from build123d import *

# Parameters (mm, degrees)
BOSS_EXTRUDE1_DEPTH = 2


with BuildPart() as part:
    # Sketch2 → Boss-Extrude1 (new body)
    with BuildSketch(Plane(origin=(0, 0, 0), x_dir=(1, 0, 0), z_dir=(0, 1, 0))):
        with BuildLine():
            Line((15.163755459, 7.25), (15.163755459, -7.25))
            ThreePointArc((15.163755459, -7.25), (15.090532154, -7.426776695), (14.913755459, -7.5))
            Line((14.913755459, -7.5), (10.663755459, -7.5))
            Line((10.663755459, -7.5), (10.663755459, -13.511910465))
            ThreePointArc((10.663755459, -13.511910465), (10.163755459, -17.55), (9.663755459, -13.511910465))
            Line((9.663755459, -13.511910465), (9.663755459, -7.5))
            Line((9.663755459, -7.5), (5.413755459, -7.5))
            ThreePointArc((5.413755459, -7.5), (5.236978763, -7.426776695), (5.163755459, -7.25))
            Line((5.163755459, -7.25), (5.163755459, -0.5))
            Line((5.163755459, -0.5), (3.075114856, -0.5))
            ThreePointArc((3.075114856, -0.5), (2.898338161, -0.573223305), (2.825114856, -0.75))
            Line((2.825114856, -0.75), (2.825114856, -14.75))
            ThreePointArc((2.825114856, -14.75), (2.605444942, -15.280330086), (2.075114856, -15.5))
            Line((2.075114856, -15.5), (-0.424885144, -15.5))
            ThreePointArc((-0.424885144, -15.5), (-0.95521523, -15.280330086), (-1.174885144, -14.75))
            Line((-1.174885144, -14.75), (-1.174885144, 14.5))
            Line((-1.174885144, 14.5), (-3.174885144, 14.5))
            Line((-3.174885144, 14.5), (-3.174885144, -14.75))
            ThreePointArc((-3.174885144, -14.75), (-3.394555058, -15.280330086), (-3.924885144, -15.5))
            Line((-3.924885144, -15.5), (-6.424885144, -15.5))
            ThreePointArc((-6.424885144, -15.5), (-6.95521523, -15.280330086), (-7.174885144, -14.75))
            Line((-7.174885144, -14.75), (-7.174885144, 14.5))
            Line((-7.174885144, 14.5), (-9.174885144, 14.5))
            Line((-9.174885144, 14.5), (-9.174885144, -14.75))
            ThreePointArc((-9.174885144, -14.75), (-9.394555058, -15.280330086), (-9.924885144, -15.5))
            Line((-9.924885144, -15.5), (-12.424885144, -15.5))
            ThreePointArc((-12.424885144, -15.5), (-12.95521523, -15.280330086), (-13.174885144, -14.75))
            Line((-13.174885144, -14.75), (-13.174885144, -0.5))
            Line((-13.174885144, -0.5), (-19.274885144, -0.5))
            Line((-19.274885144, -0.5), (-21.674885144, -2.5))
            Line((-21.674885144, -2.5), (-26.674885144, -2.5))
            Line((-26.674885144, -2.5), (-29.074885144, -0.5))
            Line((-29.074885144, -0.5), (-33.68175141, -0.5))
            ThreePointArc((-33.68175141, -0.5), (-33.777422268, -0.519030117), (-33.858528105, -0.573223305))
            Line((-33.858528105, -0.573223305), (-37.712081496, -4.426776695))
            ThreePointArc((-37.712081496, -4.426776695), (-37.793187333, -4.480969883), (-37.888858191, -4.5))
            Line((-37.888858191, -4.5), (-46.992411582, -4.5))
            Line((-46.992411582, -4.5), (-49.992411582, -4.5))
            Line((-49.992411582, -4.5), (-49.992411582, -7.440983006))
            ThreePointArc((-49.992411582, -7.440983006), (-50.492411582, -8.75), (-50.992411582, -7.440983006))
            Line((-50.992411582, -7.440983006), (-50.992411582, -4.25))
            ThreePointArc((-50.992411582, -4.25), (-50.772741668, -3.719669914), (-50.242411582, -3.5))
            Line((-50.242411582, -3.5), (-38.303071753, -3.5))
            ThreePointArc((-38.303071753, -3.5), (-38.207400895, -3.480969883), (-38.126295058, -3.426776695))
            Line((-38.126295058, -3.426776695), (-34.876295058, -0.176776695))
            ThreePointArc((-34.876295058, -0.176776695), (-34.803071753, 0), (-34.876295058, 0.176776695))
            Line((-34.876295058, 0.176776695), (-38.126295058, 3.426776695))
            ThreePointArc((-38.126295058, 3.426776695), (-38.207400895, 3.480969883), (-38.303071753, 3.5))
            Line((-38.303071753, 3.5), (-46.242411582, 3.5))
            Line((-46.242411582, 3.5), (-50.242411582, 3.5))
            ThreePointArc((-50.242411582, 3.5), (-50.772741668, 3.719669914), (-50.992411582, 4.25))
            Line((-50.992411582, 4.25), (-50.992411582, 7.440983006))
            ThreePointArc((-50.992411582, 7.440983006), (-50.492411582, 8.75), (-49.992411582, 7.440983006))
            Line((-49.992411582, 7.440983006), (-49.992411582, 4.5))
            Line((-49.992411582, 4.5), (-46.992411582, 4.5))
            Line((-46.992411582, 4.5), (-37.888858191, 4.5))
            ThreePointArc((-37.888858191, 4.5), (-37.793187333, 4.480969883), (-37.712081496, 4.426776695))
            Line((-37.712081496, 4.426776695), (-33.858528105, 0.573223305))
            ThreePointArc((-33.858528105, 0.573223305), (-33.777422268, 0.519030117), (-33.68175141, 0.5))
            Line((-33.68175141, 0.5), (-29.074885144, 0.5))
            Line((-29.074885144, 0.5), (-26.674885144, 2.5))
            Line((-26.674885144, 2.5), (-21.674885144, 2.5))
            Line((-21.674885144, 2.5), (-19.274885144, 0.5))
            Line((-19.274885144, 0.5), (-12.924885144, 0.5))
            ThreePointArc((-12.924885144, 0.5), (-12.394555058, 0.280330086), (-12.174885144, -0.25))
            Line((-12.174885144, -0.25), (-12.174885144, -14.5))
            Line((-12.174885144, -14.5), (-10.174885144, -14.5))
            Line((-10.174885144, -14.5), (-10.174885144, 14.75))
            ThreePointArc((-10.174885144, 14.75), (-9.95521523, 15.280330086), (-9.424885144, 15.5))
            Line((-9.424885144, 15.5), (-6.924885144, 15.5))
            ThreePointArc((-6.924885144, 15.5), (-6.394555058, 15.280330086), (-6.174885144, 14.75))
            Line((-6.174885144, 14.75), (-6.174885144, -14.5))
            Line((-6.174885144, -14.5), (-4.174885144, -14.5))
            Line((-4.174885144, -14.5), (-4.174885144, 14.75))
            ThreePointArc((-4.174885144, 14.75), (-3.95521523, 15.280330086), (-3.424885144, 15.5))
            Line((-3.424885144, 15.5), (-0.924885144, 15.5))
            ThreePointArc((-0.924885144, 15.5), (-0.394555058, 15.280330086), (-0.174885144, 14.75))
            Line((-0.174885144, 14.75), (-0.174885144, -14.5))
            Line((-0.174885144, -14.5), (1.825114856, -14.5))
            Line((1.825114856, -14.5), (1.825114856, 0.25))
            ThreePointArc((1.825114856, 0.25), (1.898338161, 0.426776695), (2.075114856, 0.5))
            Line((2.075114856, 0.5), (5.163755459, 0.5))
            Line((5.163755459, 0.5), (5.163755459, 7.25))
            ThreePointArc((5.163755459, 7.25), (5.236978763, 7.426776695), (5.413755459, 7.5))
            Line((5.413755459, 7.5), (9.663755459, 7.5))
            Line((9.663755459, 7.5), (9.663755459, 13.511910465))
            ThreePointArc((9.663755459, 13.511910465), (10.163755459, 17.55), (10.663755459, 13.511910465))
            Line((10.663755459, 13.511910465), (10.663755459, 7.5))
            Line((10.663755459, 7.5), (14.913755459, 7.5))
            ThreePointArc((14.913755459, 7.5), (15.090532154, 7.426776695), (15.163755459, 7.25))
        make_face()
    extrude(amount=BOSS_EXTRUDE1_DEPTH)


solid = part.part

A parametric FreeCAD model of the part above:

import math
import FreeCAD as App
import Part
import Sketcher
from FreeCAD import Vector
Q = App.Units.Quantity

doc = App.newDocument("Part")
body = doc.addObject("PartDesign::Body", "Body")

sketch1 = doc.addObject("Sketcher::SketchObject", "Sketch")
body.addObject(sketch1)
sketch1.AttachmentSupport = (doc.XZ_Plane, [""])
sketch1.MapMode = "FlatFace"
sketch1.addGeometry([
    Part.LineSegment(Vector(15.163755, 7.25, 0), Vector(15.163755, -7.25, 0)),
    Part.ArcOfCircle(Part.Circle(Vector(14.913755, -7.25, 0), Vector(0, 0, 1), 0.25), math.radians(-90), math.radians(0)),
    Part.LineSegment(Vector(14.913755, -7.5, 0), Vector(10.663755, -7.5, 0)),
    Part.LineSegment(Vector(10.663755, -7.5, 0), Vector(10.663755, -13.51191, 0)),
    Part.ArcOfCircle(Part.Circle(Vector(10.163755, -15.5, 0), Vector(0, 0, 1), 2.05), math.radians(104.116981), math.radians(435.883019)),
    Part.LineSegment(Vector(9.663755, -13.51191, 0), Vector(9.663755, -7.5, 0)),
    Part.LineSegment(Vector(9.663755, -7.5, 0), Vector(5.413755, -7.5, 0)),
    Part.ArcOfCircle(Part.Circle(Vector(5.413755, -7.25, 0), Vector(0, 0, 1), 0.25), math.radians(180), math.radians(270)),
    Part.LineSegment(Vector(5.163755, -7.25, 0), Vector(5.163755, -0.5, 0)),
    Part.LineSegment(Vector(5.163755, -0.5, 0), Vector(2.075115, -0.5, 0)),
    Part.ArcOfCircle(Part.Circle(Vector(2.075115, -0.25, 0), Vector(0, 0, 1), 0.25), math.radians(-180), math.radians(-90)),
    Part.LineSegment(Vector(1.825115, -0.25, 0), Vector(1.825115, 14.5, 0)),
    Part.LineSegment(Vector(1.825115, 14.5, 0), Vector(-0.174885, 14.5, 0)),
    Part.LineSegment(Vector(-0.174885, 14.5, 0), Vector(-0.174885, -14.75, 0)),
    Part.ArcOfCircle(Part.Circle(Vector(-0.924885, -14.75, 0), Vector(0, 0, 1), 0.75), math.radians(-90), math.radians(0)),
    Part.LineSegment(Vector(-0.924885, -15.5, 0), Vector(-3.424885, -15.5, 0)),
    Part.ArcOfCircle(Part.Circle(Vector(-3.424885, -14.75, 0), Vector(0, 0, 1), 0.75), math.radians(180), math.radians(270)),
    Part.LineSegment(Vector(-4.174885, -14.75, 0), Vector(-4.174885, 14.5, 0)),
    Part.LineSegment(Vector(-4.174885, 14.5, 0), Vector(-6.174885, 14.5, 0)),
    Part.LineSegment(Vector(-6.174885, 14.5, 0), Vector(-6.174885, -14.75, 0)),
    Part.ArcOfCircle(Part.Circle(Vector(-6.924885, -14.75, 0), Vector(0, 0, 1), 0.75), math.radians(-90), math.radians(0)),
    Part.LineSegment(Vector(-6.924885, -15.5, 0), Vector(-9.424885, -15.5, 0)),
    Part.ArcOfCircle(Part.Circle(Vector(-9.424885, -14.75, 0), Vector(0, 0, 1), 0.75), math.radians(180), math.radians(270)),
    Part.LineSegment(Vector(-10.174885, -14.75, 0), Vector(-10.174885, 14.5, 0)),
    Part.LineSegment(Vector(-10.174885, 14.5, 0), Vector(-12.174885, 14.5, 0)),
    Part.LineSegment(Vector(-12.174885, 14.5, 0), Vector(-12.174885, 0.25, 0)),
    Part.ArcOfCircle(Part.Circle(Vector(-12.924885, 0.25, 0), Vector(0, 0, 1), 0.75), math.radians(-90), math.radians(0)),
    Part.LineSegment(Vector(-12.924885, -0.5, 0), Vector(-19.274885, -0.5, 0)),
    Part.LineSegment(Vector(-19.274885, -0.5, 0), Vector(-21.674885, -2.5, 0)),
    Part.LineSegment(Vector(-21.674885, -2.5, 0), Vector(-26.674885, -2.5, 0)),
    Part.LineSegment(Vector(-26.674885, -2.5, 0), Vector(-29.074885, -0.5, 0)),
    Part.LineSegment(Vector(-29.074885, -0.5, 0), Vector(-33.681751, -0.5, 0)),
    Part.ArcOfCircle(Part.Circle(Vector(-33.681751, -0.75, 0), Vector(0, 0, 1), 0.25), math.radians(90), math.radians(135)),
    Part.LineSegment(Vector(-33.858528, -0.573223, 0), Vector(-37.712081, -4.426777, 0)),
    Part.ArcOfCircle(Part.Circle(Vector(-37.888858, -4.25, 0), Vector(0, 0, 1), 0.25), math.radians(-90), math.radians(-45)),
    Part.LineSegment(Vector(-37.888858, -4.5, 0), Vector(-49.992412, -4.5, 0)),
    Part.LineSegment(Vector(-49.992412, -4.5, 0), Vector(-49.992412, -7.440983, 0)),
    Part.ArcOfCircle(Part.Circle(Vector(-50.492412, -8, 0), Vector(0, 0, 1), 0.75), math.radians(131.810315), math.radians(408.189685)),
    Part.LineSegment(Vector(-50.992412, -7.440983, 0), Vector(-50.992412, -4.25, 0)),
    Part.ArcOfCircle(Part.Circle(Vector(-50.242412, -4.25, 0), Vector(0, 0, 1), 0.75), math.radians(90), math.radians(180)),
    Part.LineSegment(Vector(-50.242412, -3.5, 0), Vector(-38.303072, -3.5, 0)),
    Part.ArcOfCircle(Part.Circle(Vector(-38.303072, -3.25, 0), Vector(0, 0, 1), 0.25), math.radians(-90), math.radians(-45)),
    Part.LineSegment(Vector(-38.126295, -3.426777, 0), Vector(-34.876295, -0.176777, 0)),
    Part.ArcOfCircle(Part.Circle(Vector(-35.053072, 0, 0), Vector(0, 0, 1), 0.25), math.radians(-45), math.radians(45)),
    Part.LineSegment(Vector(-34.876295, 0.176777, 0), Vector(-38.126295, 3.426777, 0)),
    Part.ArcOfCircle(Part.Circle(Vector(-38.303072, 3.25, 0), Vector(0, 0, 1), 0.25), math.radians(45), math.radians(90)),
    Part.LineSegment(Vector(-38.303072, 3.5, 0), Vector(-50.242412, 3.5, 0)),
    Part.ArcOfCircle(Part.Circle(Vector(-50.242412, 4.25, 0), Vector(0, 0, 1), 0.75), math.radians(180), math.radians(270)),
    Part.LineSegment(Vector(-50.992412, 4.25, 0), Vector(-50.992412, 7.440983, 0)),
    Part.ArcOfCircle(Part.Circle(Vector(-50.492412, 8, 0), Vector(0, 0, 1), 0.75), math.radians(-48.189685), math.radians(228.189685)),
    Part.LineSegment(Vector(-49.992412, 7.440983, 0), Vector(-49.992412, 4.5, 0)),
    Part.LineSegment(Vector(-49.992412, 4.5, 0), Vector(-37.888858, 4.5, 0)),
    Part.ArcOfCircle(Part.Circle(Vector(-37.888858, 4.25, 0), Vector(0, 0, 1), 0.25), math.radians(45), math.radians(90)),
    Part.LineSegment(Vector(-37.712081, 4.426777, 0), Vector(-33.858528, 0.573223, 0)),
    Part.ArcOfCircle(Part.Circle(Vector(-33.681751, 0.75, 0), Vector(0, 0, 1), 0.25), math.radians(-135), math.radians(-90)),
    Part.LineSegment(Vector(-33.681751, 0.5, 0), Vector(-29.074885, 0.5, 0)),
    Part.LineSegment(Vector(-29.074885, 0.5, 0), Vector(-26.674885, 2.5, 0)),
    Part.LineSegment(Vector(-26.674885, 2.5, 0), Vector(-21.674885, 2.5, 0)),
    Part.LineSegment(Vector(-21.674885, 2.5, 0), Vector(-19.274885, 0.5, 0)),
    Part.LineSegment(Vector(-19.274885, 0.5, 0), Vector(-13.174885, 0.5, 0)),
    Part.LineSegment(Vector(-13.174885, 0.5, 0), Vector(-13.174885, 14.75, 0)),
    Part.ArcOfCircle(Part.Circle(Vector(-12.424885, 14.75, 0), Vector(0, 0, 1), 0.75), math.radians(90), math.radians(180)),
    Part.LineSegment(Vector(-12.424885, 15.5, 0), Vector(-9.924885, 15.5, 0)),
    Part.ArcOfCircle(Part.Circle(Vector(-9.924885, 14.75, 0), Vector(0, 0, 1), 0.75), math.radians(0), math.radians(90)),
    Part.LineSegment(Vector(-9.174885, 14.75, 0), Vector(-9.174885, -14.5, 0)),
    Part.LineSegment(Vector(-9.174885, -14.5, 0), Vector(-7.174885, -14.5, 0)),
    Part.LineSegment(Vector(-7.174885, -14.5, 0), Vector(-7.174885, 14.75, 0)),
    Part.ArcOfCircle(Part.Circle(Vector(-6.424885, 14.75, 0), Vector(0, 0, 1), 0.75), math.radians(90), math.radians(180)),
    Part.LineSegment(Vector(-6.424885, 15.5, 0), Vector(-3.924885, 15.5, 0)),
    Part.ArcOfCircle(Part.Circle(Vector(-3.924885, 14.75, 0), Vector(0, 0, 1), 0.75), math.radians(0), math.radians(90)),
    Part.LineSegment(Vector(-3.174885, 14.75, 0), Vector(-3.174885, -14.5, 0)),
    Part.LineSegment(Vector(-3.174885, -14.5, 0), Vector(-1.174885, -14.5, 0)),
    Part.LineSegment(Vector(-1.174885, -14.5, 0), Vector(-1.174885, 14.75, 0)),
    Part.ArcOfCircle(Part.Circle(Vector(-0.424885, 14.75, 0), Vector(0, 0, 1), 0.75), math.radians(90), math.radians(180)),
    Part.LineSegment(Vector(-0.424885, 15.5, 0), Vector(2.075115, 15.5, 0)),
    Part.ArcOfCircle(Part.Circle(Vector(2.075115, 14.75, 0), Vector(0, 0, 1), 0.75), math.radians(0), math.radians(90)),
    Part.LineSegment(Vector(2.825115, 14.75, 0), Vector(2.825115, 0.75, 0)),
    Part.ArcOfCircle(Part.Circle(Vector(3.075115, 0.75, 0), Vector(0, 0, 1), 0.25), math.radians(-180), math.radians(-90)),
    Part.LineSegment(Vector(3.075115, 0.5, 0), Vector(5.163755, 0.5, 0)),
    Part.LineSegment(Vector(5.163755, 0.5, 0), Vector(5.163755, 7.25, 0)),
    Part.ArcOfCircle(Part.Circle(Vector(5.413755, 7.25, 0), Vector(0, 0, 1), 0.25), math.radians(90), math.radians(180)),
    Part.LineSegment(Vector(5.413755, 7.5, 0), Vector(9.663755, 7.5, 0)),
    Part.LineSegment(Vector(9.663755, 7.5, 0), Vector(9.663755, 13.51191, 0)),
    Part.ArcOfCircle(Part.Circle(Vector(10.163755, 15.5, 0), Vector(0, 0, 1), 2.05), math.radians(-75.883019), math.radians(255.883019)),
    Part.LineSegment(Vector(10.663755, 13.51191, 0), Vector(10.663755, 7.5, 0)),
    Part.LineSegment(Vector(10.663755, 7.5, 0), Vector(14.913755, 7.5, 0)),
    Part.ArcOfCircle(Part.Circle(Vector(14.913755, 7.25, 0), Vector(0, 0, 1), 0.25), math.radians(0), math.radians(90)),
], False)
sketch1.addConstraint([
    Sketcher.Constraint("Tangent", 0, 2, 1, 2),
    Sketcher.Constraint("Tangent", 1, 1, 2, 1),
    Sketcher.Constraint("Coincident", 2, 2, 3, 1),
    Sketcher.Constraint("Coincident", 3, 2, 4, 2),
    Sketcher.Constraint("Coincident", 4, 1, 5, 1),
    Sketcher.Constraint("Coincident", 5, 2, 6, 1),
    Sketcher.Constraint("Tangent", 6, 2, 7, 2),
    Sketcher.Constraint("Tangent", 7, 1, 8, 1),
    Sketcher.Constraint("Coincident", 8, 2, 9, 1),
    Sketcher.Constraint("Tangent", 9, 2, 10, 2),
    Sketcher.Constraint("Tangent", 10, 1, 11, 1),
    Sketcher.Constraint("Coincident", 11, 2, 12, 1),
    Sketcher.Constraint("Coincident", 12, 2, 13, 1),
    Sketcher.Constraint("Tangent", 13, 2, 14, 2),
    Sketcher.Constraint("Tangent", 14, 1, 15, 1),
    Sketcher.Constraint("Tangent", 15, 2, 16, 2),
    Sketcher.Constraint("Tangent", 16, 1, 17, 1),
    Sketcher.Constraint("Coincident", 17, 2, 18, 1),
    Sketcher.Constraint("Coincident", 18, 2, 19, 1),
    Sketcher.Constraint("Tangent", 19, 2, 20, 2),
    Sketcher.Constraint("Tangent", 20, 1, 21, 1),
    Sketcher.Constraint("Tangent", 21, 2, 22, 2),
    Sketcher.Constraint("Tangent", 22, 1, 23, 1),
    Sketcher.Constraint("Coincident", 23, 2, 24, 1),
    Sketcher.Constraint("Coincident", 24, 2, 25, 1),
    Sketcher.Constraint("Tangent", 25, 2, 26, 2),
    Sketcher.Constraint("Tangent", 26, 1, 27, 1),
    Sketcher.Constraint("Coincident", 27, 2, 28, 1),
    Sketcher.Constraint("Coincident", 28, 2, 29, 1),
    Sketcher.Constraint("Coincident", 29, 2, 30, 1),
    Sketcher.Constraint("Coincident", 30, 2, 31, 1),
    Sketcher.Constraint("Tangent", 31, 2, 32, 1),
    Sketcher.Constraint("Tangent", 32, 2, 33, 1),
    Sketcher.Constraint("Tangent", 33, 2, 34, 2),
    Sketcher.Constraint("Tangent", 34, 1, 35, 1),
    Sketcher.Constraint("Coincident", 35, 2, 36, 1),
    Sketcher.Constraint("Coincident", 36, 2, 37, 2),
    Sketcher.Constraint("Coincident", 37, 1, 38, 1),
    Sketcher.Constraint("Tangent", 38, 2, 39, 2),
    Sketcher.Constraint("Tangent", 39, 1, 40, 1),
    Sketcher.Constraint("Tangent", 40, 2, 41, 1),
    Sketcher.Constraint("Tangent", 41, 2, 42, 1),
    Sketcher.Constraint("Tangent", 42, 2, 43, 1),
    Sketcher.Constraint("Tangent", 43, 2, 44, 1),
    Sketcher.Constraint("Tangent", 44, 2, 45, 1),
    Sketcher.Constraint("Tangent", 45, 2, 46, 1),
    Sketcher.Constraint("Tangent", 46, 2, 47, 2),
    Sketcher.Constraint("Tangent", 47, 1, 48, 1),
    Sketcher.Constraint("Coincident", 48, 2, 49, 2),
    Sketcher.Constraint("Coincident", 49, 1, 50, 1),
    Sketcher.Constraint("Coincident", 50, 2, 51, 1),
    Sketcher.Constraint("Tangent", 51, 2, 52, 2),
    Sketcher.Constraint("Tangent", 52, 1, 53, 1),
    Sketcher.Constraint("Tangent", 53, 2, 54, 1),
    Sketcher.Constraint("Tangent", 54, 2, 55, 1),
    Sketcher.Constraint("Coincident", 55, 2, 56, 1),
    Sketcher.Constraint("Coincident", 56, 2, 57, 1),
    Sketcher.Constraint("Coincident", 57, 2, 58, 1),
    Sketcher.Constraint("Coincident", 58, 2, 59, 1),
    Sketcher.Constraint("Coincident", 59, 2, 60, 1),
    Sketcher.Constraint("Tangent", 60, 2, 61, 2),
    Sketcher.Constraint("Tangent", 61, 1, 62, 1),
    Sketcher.Constraint("Tangent", 62, 2, 63, 2),
    Sketcher.Constraint("Tangent", 63, 1, 64, 1),
    Sketcher.Constraint("Coincident", 64, 2, 65, 1),
    Sketcher.Constraint("Coincident", 65, 2, 66, 1),
    Sketcher.Constraint("Tangent", 66, 2, 67, 2),
    Sketcher.Constraint("Tangent", 67, 1, 68, 1),
    Sketcher.Constraint("Tangent", 68, 2, 69, 2),
    Sketcher.Constraint("Tangent", 69, 1, 70, 1),
    Sketcher.Constraint("Coincident", 70, 2, 71, 1),
    Sketcher.Constraint("Coincident", 71, 2, 72, 1),
    Sketcher.Constraint("Tangent", 72, 2, 73, 2),
    Sketcher.Constraint("Tangent", 73, 1, 74, 1),
    Sketcher.Constraint("Tangent", 74, 2, 75, 2),
    Sketcher.Constraint("Tangent", 75, 1, 76, 1),
    Sketcher.Constraint("Tangent", 76, 2, 77, 1),
    Sketcher.Constraint("Tangent", 77, 2, 78, 1),
    Sketcher.Constraint("Coincident", 78, 2, 79, 1),
    Sketcher.Constraint("Tangent", 79, 2, 80, 2),
    Sketcher.Constraint("Tangent", 80, 1, 81, 1),
    Sketcher.Constraint("Coincident", 81, 2, 82, 1),
    Sketcher.Constraint("Coincident", 82, 2, 83, 2),
    Sketcher.Constraint("Coincident", 83, 1, 84, 1),
    Sketcher.Constraint("Coincident", 84, 2, 85, 1),
    Sketcher.Constraint("Tangent", 85, 2, 86, 2),
    Sketcher.Constraint("Tangent", 86, 1, 0, 1),
    Sketcher.Constraint("Vertical", 0),
    Sketcher.Constraint("Horizontal", 2),
    Sketcher.Constraint("Vertical", 3),
    Sketcher.Constraint("Vertical", 5),
    Sketcher.Constraint("Horizontal", 6),
    Sketcher.Constraint("Vertical", 8),
    Sketcher.Constraint("Horizontal", 9),
    Sketcher.Constraint("Vertical", 11),
    Sketcher.Constraint("Horizontal", 12),
    Sketcher.Constraint("Vertical", 13),
    Sketcher.Constraint("Horizontal", 15),
    Sketcher.Constraint("Vertical", 17),
    Sketcher.Constraint("Horizontal", 18),
    Sketcher.Constraint("Vertical", 19),
    Sketcher.Constraint("Horizontal", 21),
    Sketcher.Constraint("Vertical", 23),
    Sketcher.Constraint("Horizontal", 24),
    Sketcher.Constraint("Vertical", 25),
    Sketcher.Constraint("Horizontal", 27),
    Sketcher.Constraint("Horizontal", 29),
    Sketcher.Constraint("Horizontal", 31),
    Sketcher.Constraint("Horizontal", 35),
    Sketcher.Constraint("Vertical", 36),
    Sketcher.Constraint("Vertical", 38),
    Sketcher.Constraint("Horizontal", 40),
    Sketcher.Constraint("Horizontal", 46),
    Sketcher.Constraint("Vertical", 48),
    Sketcher.Constraint("Vertical", 50),
    Sketcher.Constraint("Horizontal", 51),
    Sketcher.Constraint("Horizontal", 55),
    Sketcher.Constraint("Horizontal", 57),
    Sketcher.Constraint("Horizontal", 59),
    Sketcher.Constraint("Vertical", 60),
    Sketcher.Constraint("Horizontal", 62),
    Sketcher.Constraint("Vertical", 64),
    Sketcher.Constraint("Horizontal", 65),
    Sketcher.Constraint("Vertical", 66),
    Sketcher.Constraint("Horizontal", 68),
    Sketcher.Constraint("Vertical", 70),
    Sketcher.Constraint("Horizontal", 71),
    Sketcher.Constraint("Vertical", 72),
    Sketcher.Constraint("Horizontal", 74),
    Sketcher.Constraint("Vertical", 76),
    Sketcher.Constraint("Horizontal", 78),
    Sketcher.Constraint("Vertical", 79),
    Sketcher.Constraint("Horizontal", 81),
    Sketcher.Constraint("Vertical", 82),
    Sketcher.Constraint("Vertical", 84),
    Sketcher.Constraint("Horizontal", 85),
    Sketcher.Constraint("Equal", 1, 7),
    Sketcher.Constraint("Equal", 7, 10),
    Sketcher.Constraint("Equal", 14, 16),
    Sketcher.Constraint("Equal", 16, 20),
    Sketcher.Constraint("Equal", 20, 22),
    Sketcher.Constraint("Equal", 22, 26),
    Sketcher.Constraint("Equal", 10, 32),
    Sketcher.Constraint("Equal", 32, 34),
    Sketcher.Constraint("Equal", 26, 37),
    Sketcher.Constraint("Equal", 37, 39),
    Sketcher.Constraint("Equal", 34, 41),
    Sketcher.Constraint("Equal", 41, 43),
    Sketcher.Constraint("Equal", 43, 45),
    Sketcher.Constraint("Equal", 39, 47),
    Sketcher.Constraint("Equal", 47, 49),
    Sketcher.Constraint("Equal", 45, 52),
    Sketcher.Constraint("Equal", 52, 54),
    Sketcher.Constraint("Equal", 49, 61),
    Sketcher.Constraint("Equal", 61, 63),
    Sketcher.Constraint("Equal", 63, 67),
    Sketcher.Constraint("Equal", 67, 69),
    Sketcher.Constraint("Equal", 69, 73),
    Sketcher.Constraint("Equal", 73, 75),
    Sketcher.Constraint("Equal", 54, 77),
    Sketcher.Constraint("Equal", 77, 80),
    Sketcher.Constraint("Equal", 4, 83),
    Sketcher.Constraint("Equal", 80, 86),
    Sketcher.Constraint("Symmetric", 41, 3, 45, 3, -1),
    Sketcher.Constraint("Symmetric", 37, 3, 49, 3, -1),
    Sketcher.Constraint("Symmetric", 34, 3, 52, 3, -1),
    Sketcher.Constraint("Symmetric", 32, 3, 54, 3, -1),
    Sketcher.Constraint("Symmetric", 7, 3, 80, 3, -1),
    Sketcher.Constraint("Symmetric", 4, 3, 83, 3, -1),
    Sketcher.Constraint("Symmetric", 29, 2, 56, 2, -1),
    Sketcher.Constraint("Symmetric", 27, 2, 58, 2, -1),
    Sketcher.Constraint("Symmetric", 2, 2, 84, 2, -1),
    Sketcher.Constraint("PointOnObject", 43, 3, -1),
    Sketcher.Constraint("Parallel", 33, 42),
    Sketcher.Constraint("Perpendicular", 42, 44),
    Sketcher.Constraint("Parallel", 28, 56),
    Sketcher.Constraint("Parallel", 30, 58),
    Sketcher.Constraint("Horizontal", 1, 3, 7, 3),
    Sketcher.Constraint("Horizontal", 16, 3, 20, 3),
    Sketcher.Constraint("Horizontal", 34, 3, 39, 3),
    Sketcher.Constraint("Horizontal", 63, 3, 67, 3),
    Sketcher.Constraint("Horizontal", 69, 3, 73, 3),
    Sketcher.Constraint("Horizontal", 54, 3, 77, 3),
    Sketcher.Constraint("Horizontal", 3, 2, 4, 1),
    Sketcher.Constraint("Horizontal", 4, 3, 14, 1),
    Sketcher.Constraint("Horizontal", 12, 2, 17, 2),
    Sketcher.Constraint("Horizontal", 18, 2, 23, 2),
    Sketcher.Constraint("Horizontal", 9, 2, 26, 1),
    Sketcher.Constraint("Horizontal", 27, 2, 30, 2),
    Sketcher.Constraint("Horizontal", 36, 2, 37, 1),
    Sketcher.Constraint("Horizontal", 48, 2, 49, 1),
    Sketcher.Constraint("Horizontal", 83, 3, 61, 1),
    Sketcher.Constraint("Horizontal", 65, 2, 70, 2),
    Sketcher.Constraint("Horizontal", 82, 2, 83, 1),
    Sketcher.Constraint("Vertical", 39, 3, 47, 3),
    Sketcher.Constraint("Vertical", 10, 3, 75, 3),
    Sketcher.Constraint("Vertical", 30, 2, 55, 2),
    Sketcher.Constraint("Equal", 2, 6),
    Sketcher.Constraint("Equal", 12, 18),
    Sketcher.Constraint("Equal", 15, 21),
    Sketcher.Constraint("Equal", 18, 24),
    Sketcher.Constraint("Equal", 21, 62),
    Sketcher.Constraint("Equal", 24, 65),
    Sketcher.Constraint("Equal", 62, 68),
    Sketcher.Constraint("Equal", 65, 71),
    Sketcher.Constraint("Equal", 68, 74),
    Sketcher.Constraint("Equal", 25, 60),
    Sketcher.Constraint("Equal", 23, 64),
    Sketcher.Constraint("DistanceX", 12, 2, 12, 1, Q("2 mm")),
    Sketcher.Constraint("DistanceX", 29, 2, 29, 1, Q("5 mm")),
    Sketcher.Constraint("DistanceY", 76, 2, 76, 1, Q("14 mm")),
    Sketcher.Constraint("Radius", 1, Q("0.25 mm")),
    Sketcher.Constraint("Radius", 4, Q("2.05 mm")),
    Sketcher.Constraint("Radius", 14, Q("0.75 mm")),
    Sketcher.Constraint("DistanceX", 15, 2, 15, 1, Q("2.5 mm")),
    Sketcher.Constraint("DistanceX", 59, 1, 59, 2, Q("6.1 mm")),
    Sketcher.Constraint("DistanceY", 0, 2, 0, 1, Q("14.5 mm")),
    Sketcher.Constraint("DistanceY", 37, 3, -1, 1, Q("8 mm")),
    Sketcher.Constraint("DistanceX", 2, 2, 2, 1, Q("4.25 mm")),
    Sketcher.Constraint("DistanceY", 8, 1, 8, 2, Q("6.75 mm")),
    Sketcher.Constraint("DistanceY", 28, 2, -1, 1, Q("2.5 mm")),
    Sketcher.Constraint("DistanceY", 34, 1, -1, 1, Q("4.5 mm")),
    Sketcher.Constraint("Distance", 28, Q("3.1241 mm")),
    Sketcher.Constraint("DistanceX", 9, 2, 9, 1, Q("3.088641 mm")),
    Sketcher.Constraint("DistanceX", 40, 1, 40, 2, Q("11.93934 mm")),
    Sketcher.Constraint("DistanceY", 3, 2, 3, 1, Q("6.01191 mm")),
    Sketcher.Constraint("DistanceX", 31, 2, 31, 1, Q("4.606866 mm")),
    Sketcher.Constraint("DistanceX", 35, 2, 35, 1, Q("12.103553 mm")),
    Sketcher.Constraint("DistanceY", 36, 2, 36, 1, Q("2.940983 mm")),
    Sketcher.Constraint("DistanceX", 32, 3, -1, 1, Q("33.681751 mm")),
])
pad1 = doc.addObject("PartDesign::Pad", "Pad")
body.addObject(pad1)
pad1.Profile = sketch1
pad1.Length = 2
pad1.Reversed = True

doc.recompute()
